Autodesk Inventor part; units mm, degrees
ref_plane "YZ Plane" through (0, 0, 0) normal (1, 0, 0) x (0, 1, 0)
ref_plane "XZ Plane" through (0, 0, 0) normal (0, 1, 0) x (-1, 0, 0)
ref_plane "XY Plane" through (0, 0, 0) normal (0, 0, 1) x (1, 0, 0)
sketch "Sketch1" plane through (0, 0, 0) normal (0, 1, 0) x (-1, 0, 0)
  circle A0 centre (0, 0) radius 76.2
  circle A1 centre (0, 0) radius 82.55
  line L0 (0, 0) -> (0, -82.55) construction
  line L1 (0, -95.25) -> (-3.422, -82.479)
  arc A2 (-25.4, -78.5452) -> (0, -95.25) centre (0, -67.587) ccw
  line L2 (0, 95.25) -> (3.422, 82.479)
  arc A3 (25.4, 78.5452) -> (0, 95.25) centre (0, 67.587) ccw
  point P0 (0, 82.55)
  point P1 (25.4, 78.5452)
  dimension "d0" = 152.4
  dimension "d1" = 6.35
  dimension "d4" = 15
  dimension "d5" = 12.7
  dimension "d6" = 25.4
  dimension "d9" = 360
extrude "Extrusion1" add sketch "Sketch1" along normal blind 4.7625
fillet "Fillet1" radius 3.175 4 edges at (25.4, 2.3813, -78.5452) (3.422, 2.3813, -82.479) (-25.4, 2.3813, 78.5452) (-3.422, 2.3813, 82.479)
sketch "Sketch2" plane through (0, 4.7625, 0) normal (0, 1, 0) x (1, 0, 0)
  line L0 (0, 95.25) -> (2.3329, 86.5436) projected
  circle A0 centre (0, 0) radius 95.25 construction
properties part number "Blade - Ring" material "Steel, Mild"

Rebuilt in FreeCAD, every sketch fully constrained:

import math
import FreeCAD as App
import Part
import Sketcher

V = App.Vector
Q = App.Units.Quantity


def edges_at(feature, points):
    """Names of the edges that pass closest to the given points."""
    edges = feature.Shape.Edges
    near = lambda p: min(range(len(edges)), key=lambda i: edges[i].distToShape(Part.Vertex(*p))[0])
    return sorted({f"Edge{near(p) + 1}" for p in points})

doc = App.newDocument("Part")
body = doc.addObject("PartDesign::Body", "Body")

# Sketch on XZ plane
sketch1 = doc.addObject("Sketcher::SketchObject", "Sketch")
body.addObject(sketch1)
sketch1.AttachmentSupport = (doc.XZ_Plane, [""])
sketch1.MapMode = "FlatFace"
sketch1.addGeometry(Part.ArcOfCircle(Part.Circle(V(0, 0, 0), V(0, 0, 1), 83), math.radians(108), math.radians(272)), False)
sketch1.addGeometry(Part.ArcOfCircle(Part.Circle(V(0, 68, 0), V(0, 0, 1), 28), math.radians(90), math.radians(157)), False)
sketch1.addGeometry(Part.LineSegment(V(0, 95, 0), V(-3, 82, 0)), False)
sketch1.addGeometry(Part.ArcOfCircle(Part.Circle(V(0, 0, 0), V(0, 0, 1), 83), math.radians(-72), math.radians(92)), False)
sketch1.addGeometry(Part.ArcOfCircle(Part.Circle(V(0, -68, 0), V(0, 0, 1), 28), math.radians(-90), math.radians(-23)), False)
sketch1.addGeometry(Part.LineSegment(V(0, -95, 0), V(3, -82, 0)), False)
sketch1.addGeometry(Part.Circle(V(0, 0, 0), V(0, 0, 1), 76), False)
sketch1.addConstraint(Sketcher.Constraint("Coincident", 0, 1, 1, 2))
sketch1.addConstraint(Sketcher.Constraint("Coincident", 1, 1, 2, 1))
sketch1.addConstraint(Sketcher.Constraint("Coincident", 2, 2, 3, 2))
sketch1.addConstraint(Sketcher.Constraint("Coincident", 3, 1, 4, 2))
sketch1.addConstraint(Sketcher.Constraint("Coincident", 4, 1, 5, 1))
sketch1.addConstraint(Sketcher.Constraint("Coincident", 5, 2, 0, 2))
sketch1.addConstraint(Sketcher.Constraint("Coincident", 0, 3, -1, 1))
sketch1.addConstraint(Sketcher.Constraint("Coincident", 3, 3, -1, 1))
sketch1.addConstraint(Sketcher.Constraint("Coincident", 6, 3, -1, 1))
sketch1.addConstraint(Sketcher.Constraint("Equal", 0, 3))
sketch1.addConstraint(Sketcher.Constraint("Equal", 1, 4))
sketch1.addConstraint(Sketcher.Constraint("Symmetric", 1, 3, 4, 3, -1, 1))
sketch1.addConstraint(Sketcher.Constraint("PointOnObject", 1, 3, -2))
sketch1.addConstraint(Sketcher.Constraint("PointOnObject", 1, 1, -2))
sketch1.addConstraint(Sketcher.Constraint("PointOnObject", 4, 1, -2))
sketch1.addConstraint(Sketcher.Constraint("Parallel", 2, 5))
sketch1.addConstraint(Sketcher.Constraint("Diameter", 6, Q("6 in")))
sketch1.addConstraint(Sketcher.Constraint("DistanceX", 0, 1, -1, 1, Q("1 in")))
sketch1.addConstraint(Sketcher.Constraint("Radius", 0, Q("3.25 in")))
sketch1.addConstraint(Sketcher.Constraint("Angle", 2, Q("-105 deg")))
sketch1.addConstraint(Sketcher.Constraint("Radius", 1, Q("1.0891 in")))
pad1 = doc.addObject("PartDesign::Pad", "Pad")
body.addObject(pad1)
pad1.Profile = sketch1
pad1.Length = Q("0.1875 in")
pad1.Reversed = True
doc.recompute()

fillet = doc.addObject("PartDesign::Fillet", "Fillet")
body.addObject(fillet)
fillet.Base = (pad1, edges_at(pad1, [
    (25.4, 2.381, -78.545),
    (3.422, 2.381, -82.479),
    (-25.4, 2.381, 78.545),
    (-3.422, 2.381, 82.479),
]))
fillet.Radius = Q("0.125 in")

doc.recompute()
